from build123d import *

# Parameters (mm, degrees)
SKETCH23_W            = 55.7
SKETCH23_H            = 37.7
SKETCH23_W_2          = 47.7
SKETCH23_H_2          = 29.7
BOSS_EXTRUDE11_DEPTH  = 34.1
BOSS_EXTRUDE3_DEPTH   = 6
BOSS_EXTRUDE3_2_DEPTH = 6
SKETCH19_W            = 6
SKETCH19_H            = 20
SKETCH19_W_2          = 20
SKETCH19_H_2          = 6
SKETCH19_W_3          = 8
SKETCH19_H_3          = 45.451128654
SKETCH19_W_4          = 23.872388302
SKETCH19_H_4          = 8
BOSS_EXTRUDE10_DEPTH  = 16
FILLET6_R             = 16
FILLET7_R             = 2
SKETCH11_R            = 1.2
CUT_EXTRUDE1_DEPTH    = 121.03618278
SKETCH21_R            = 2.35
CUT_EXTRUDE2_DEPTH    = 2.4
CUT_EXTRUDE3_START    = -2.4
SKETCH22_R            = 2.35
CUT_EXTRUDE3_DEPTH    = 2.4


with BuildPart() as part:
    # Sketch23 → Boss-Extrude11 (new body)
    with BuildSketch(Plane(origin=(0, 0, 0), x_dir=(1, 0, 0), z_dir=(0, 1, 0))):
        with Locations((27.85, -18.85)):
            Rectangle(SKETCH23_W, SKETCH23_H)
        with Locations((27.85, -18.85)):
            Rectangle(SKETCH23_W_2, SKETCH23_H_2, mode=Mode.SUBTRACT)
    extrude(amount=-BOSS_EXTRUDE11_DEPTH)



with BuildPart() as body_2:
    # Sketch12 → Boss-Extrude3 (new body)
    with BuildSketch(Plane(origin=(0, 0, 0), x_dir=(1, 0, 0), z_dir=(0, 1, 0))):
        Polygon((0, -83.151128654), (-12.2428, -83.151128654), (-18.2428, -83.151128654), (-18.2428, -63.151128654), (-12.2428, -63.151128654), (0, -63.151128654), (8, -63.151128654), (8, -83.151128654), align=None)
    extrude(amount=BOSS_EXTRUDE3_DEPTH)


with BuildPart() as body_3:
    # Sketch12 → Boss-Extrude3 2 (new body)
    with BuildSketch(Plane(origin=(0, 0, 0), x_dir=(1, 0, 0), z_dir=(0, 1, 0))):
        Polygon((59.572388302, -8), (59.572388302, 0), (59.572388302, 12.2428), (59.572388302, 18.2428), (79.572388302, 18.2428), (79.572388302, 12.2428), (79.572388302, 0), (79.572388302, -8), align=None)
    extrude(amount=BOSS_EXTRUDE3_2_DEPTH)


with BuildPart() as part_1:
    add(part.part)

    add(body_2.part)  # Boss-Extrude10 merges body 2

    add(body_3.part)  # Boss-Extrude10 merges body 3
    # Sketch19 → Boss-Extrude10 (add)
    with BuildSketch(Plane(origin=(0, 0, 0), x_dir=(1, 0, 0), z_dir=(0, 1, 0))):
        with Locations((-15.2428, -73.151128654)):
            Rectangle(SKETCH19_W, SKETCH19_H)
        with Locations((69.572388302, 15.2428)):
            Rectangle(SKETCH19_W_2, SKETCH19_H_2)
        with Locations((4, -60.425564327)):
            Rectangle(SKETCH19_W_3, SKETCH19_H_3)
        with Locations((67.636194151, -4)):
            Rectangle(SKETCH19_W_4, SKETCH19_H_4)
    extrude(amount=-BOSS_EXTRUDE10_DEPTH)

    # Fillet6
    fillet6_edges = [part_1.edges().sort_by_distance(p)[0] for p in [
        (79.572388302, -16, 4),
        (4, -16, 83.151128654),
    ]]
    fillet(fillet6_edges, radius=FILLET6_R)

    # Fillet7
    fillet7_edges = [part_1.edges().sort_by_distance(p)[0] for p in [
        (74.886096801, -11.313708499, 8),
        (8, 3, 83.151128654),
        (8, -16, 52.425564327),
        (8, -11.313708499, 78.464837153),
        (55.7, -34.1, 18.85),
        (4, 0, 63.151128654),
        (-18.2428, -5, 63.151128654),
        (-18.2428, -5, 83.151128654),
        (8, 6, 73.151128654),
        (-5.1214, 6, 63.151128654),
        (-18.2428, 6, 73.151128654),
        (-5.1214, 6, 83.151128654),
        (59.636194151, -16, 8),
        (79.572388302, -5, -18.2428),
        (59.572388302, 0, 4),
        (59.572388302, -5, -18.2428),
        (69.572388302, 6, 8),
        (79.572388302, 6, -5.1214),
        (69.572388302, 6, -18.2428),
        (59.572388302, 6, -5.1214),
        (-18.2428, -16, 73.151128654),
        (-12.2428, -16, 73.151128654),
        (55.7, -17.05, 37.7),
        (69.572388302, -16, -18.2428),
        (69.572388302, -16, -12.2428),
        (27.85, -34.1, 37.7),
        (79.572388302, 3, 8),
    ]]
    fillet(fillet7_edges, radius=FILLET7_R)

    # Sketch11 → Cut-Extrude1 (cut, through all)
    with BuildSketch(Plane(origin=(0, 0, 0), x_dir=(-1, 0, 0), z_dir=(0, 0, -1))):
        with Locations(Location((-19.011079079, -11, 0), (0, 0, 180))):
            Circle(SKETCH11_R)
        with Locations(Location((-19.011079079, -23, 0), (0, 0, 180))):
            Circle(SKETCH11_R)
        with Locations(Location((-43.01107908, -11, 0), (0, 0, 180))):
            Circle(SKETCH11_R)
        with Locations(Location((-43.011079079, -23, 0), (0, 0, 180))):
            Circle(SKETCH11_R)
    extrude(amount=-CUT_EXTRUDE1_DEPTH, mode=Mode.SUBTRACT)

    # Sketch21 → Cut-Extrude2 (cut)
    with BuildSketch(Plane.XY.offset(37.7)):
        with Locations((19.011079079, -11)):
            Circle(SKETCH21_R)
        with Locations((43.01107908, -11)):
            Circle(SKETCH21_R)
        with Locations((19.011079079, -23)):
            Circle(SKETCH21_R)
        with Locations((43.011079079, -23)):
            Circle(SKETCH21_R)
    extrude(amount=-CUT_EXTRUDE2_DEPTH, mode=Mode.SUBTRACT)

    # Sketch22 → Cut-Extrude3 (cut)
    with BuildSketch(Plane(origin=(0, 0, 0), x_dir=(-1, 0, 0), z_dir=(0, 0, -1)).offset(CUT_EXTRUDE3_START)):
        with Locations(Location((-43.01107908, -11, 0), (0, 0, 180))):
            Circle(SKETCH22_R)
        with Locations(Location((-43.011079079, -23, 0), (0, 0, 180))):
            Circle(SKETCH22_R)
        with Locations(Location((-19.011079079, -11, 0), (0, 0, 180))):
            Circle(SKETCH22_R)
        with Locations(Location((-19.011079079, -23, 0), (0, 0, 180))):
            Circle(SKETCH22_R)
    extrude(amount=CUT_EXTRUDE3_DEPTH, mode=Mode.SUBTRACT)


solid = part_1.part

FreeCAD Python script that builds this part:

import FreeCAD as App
import Part
import Sketcher
from FreeCAD import Vector
Q = App.Units.Quantity


def edges_at(feature, points):
    """Names of the edges that pass closest to the given points."""
    edges = feature.Shape.Edges
    near = lambda p: min(range(len(edges)), key=lambda i: edges[i].distToShape(Part.Vertex(*p))[0])
    return sorted({f"Edge{near(p) + 1}" for p in points})


def add_polygon(sketch, points):
    """Adds a closed chain of lines whose ends are joined by coincident constraints."""
    first, n = sketch.GeometryCount, len(points)
    for a, b in zip(points, points[1:] + points[:1]):
        sketch.addGeometry(Part.LineSegment(App.Vector(*a, 0), App.Vector(*b, 0)), False)
    for i in range(n):
        sketch.addConstraint(Sketcher.Constraint("Coincident", first + i, 2, first + (i + 1) % n, 1))

doc = App.newDocument("Part")
body = doc.addObject("PartDesign::Body", "Body")

sketch1 = body.newObject("Sketcher::SketchObject", "Sketch")
sketch1.AttachmentSupport = (doc.getObject("XZ_Plane"), [""])
sketch1.MapMode = "FlatFace"
add_polygon(sketch1, [(0, 0), (0, 38), (56, 38), (56, 0)])
add_polygon(sketch1, [(52, 34), (4, 34), (4, 4), (52, 4)])
sketch1.addConstraint(Sketcher.Constraint("Vertical", 0))
sketch1.addConstraint(Sketcher.Constraint("Horizontal", 1))
sketch1.addConstraint(Sketcher.Constraint("Vertical", 2))
sketch1.addConstraint(Sketcher.Constraint("Horizontal", 3))
sketch1.addConstraint(Sketcher.Constraint("Horizontal", 4))
sketch1.addConstraint(Sketcher.Constraint("Vertical", 5))
sketch1.addConstraint(Sketcher.Constraint("Horizontal", 6))
sketch1.addConstraint(Sketcher.Constraint("Vertical", 7))
sketch1.addConstraint(Sketcher.Constraint("Coincident", 3, 2, -1, 1))
sketch1.addConstraint(Sketcher.Constraint("DistanceX", 1, 1, 1, 2, Q("55.7 mm")))
sketch1.addConstraint(Sketcher.Constraint("DistanceX", 4, 2, 4, 1, Q("47.7 mm")))
sketch1.addConstraint(Sketcher.Constraint("DistanceY", 0, 1, 0, 2, Q("37.7 mm")))
sketch1.addConstraint(Sketcher.Constraint("DistanceY", 5, 2, 5, 1, Q("29.7 mm")))
sketch1.addConstraint(Sketcher.Constraint("DistanceX", -1, 1, 4, 2, Q("4 mm")))
sketch1.addConstraint(Sketcher.Constraint("DistanceY", -1, 1, 5, 2, Q("4 mm")))
pad1 = body.newObject("PartDesign::Pad", "Pad")
pad1.Profile = sketch1
pad1.Length = 34.1
body2 = doc.addObject("PartDesign::Body", "Body001")

sketch2 = body2.newObject("Sketcher::SketchObject", "Sketch001")
sketch2.AttachmentSupport = (doc.getObject("XZ_Plane001"), [""])
sketch2.MapMode = "FlatFace"
add_polygon(sketch2, [(-18, 83), (8, 83), (8, 63), (-18, 63)])
sketch2.addConstraint(Sketcher.Constraint("Horizontal", 0))
sketch2.addConstraint(Sketcher.Constraint("Vertical", 1))
sketch2.addConstraint(Sketcher.Constraint("Horizontal", 2))
sketch2.addConstraint(Sketcher.Constraint("Vertical", 3))
sketch2.addConstraint(Sketcher.Constraint("DistanceY", 1, 2, 1, 1, Q("20 mm")))
sketch2.addConstraint(Sketcher.Constraint("DistanceX", -1, 1, 0, 2, Q("8 mm")))
sketch2.addConstraint(Sketcher.Constraint("DistanceX", 0, 1, 0, 2, Q("26.2428 mm")))
sketch2.addConstraint(Sketcher.Constraint("DistanceY", -1, 1, 0, 2, Q("83.151129 mm")))
pad2 = body2.newObject("PartDesign::Pad", "Pad001")
pad2.Profile = sketch2
pad2.Length = 6
pad2.Reversed = True
body3 = doc.addObject("PartDesign::Body", "Body002")

sketch3 = body3.newObject("Sketcher::SketchObject", "Sketch002")
sketch3.AttachmentSupport = (doc.getObject("XZ_Plane002"), [""])
sketch3.MapMode = "FlatFace"
add_polygon(sketch3, [(60, -18), (60, 8), (80, 8), (80, -18)])
sketch3.addConstraint(Sketcher.Constraint("Vertical", 0))
sketch3.addConstraint(Sketcher.Constraint("Horizontal", 1))
sketch3.addConstraint(Sketcher.Constraint("Vertical", 2))
sketch3.addConstraint(Sketcher.Constraint("Horizontal", 3))
sketch3.addConstraint(Sketcher.Constraint("DistanceX", 1, 1, 1, 2, Q("20 mm")))
sketch3.addConstraint(Sketcher.Constraint("DistanceY", -1, 1, 0, 2, Q("8 mm")))
sketch3.addConstraint(Sketcher.Constraint("DistanceY", 0, 1, 0, 2, Q("26.2428 mm")))
sketch3.addConstraint(Sketcher.Constraint("DistanceX", -1, 1, 0, 2, Q("59.572388 mm")))
pad3 = body3.newObject("PartDesign::Pad", "Pad002")
pad3.Profile = sketch3
pad3.Length = 6
pad3.Reversed = True
body.AllowCompound = True
doc.recompute()

boolean = body.newObject("PartDesign::Boolean", "Boolean")
boolean.Type = "Fuse"
boolean.addObjects([body2])
doc.recompute()

boolean2 = body.newObject("PartDesign::Boolean", "Boolean001")
boolean2.Type = "Fuse"
boolean2.addObjects([body3])

sketch4 = body.newObject("Sketcher::SketchObject", "Sketch003")
sketch4.AttachmentSupport = (doc.getObject("XZ_Plane"), [""])
sketch4.MapMode = "FlatFace"
add_polygon(sketch4, [(-18, 63), (-18, 83), (-12, 83), (-12, 63)])
add_polygon(sketch4, [(60, -18), (60, -12), (80, -12), (80, -18)])
add_polygon(sketch4, [(0, 38), (0, 83), (8, 83), (8, 38)])
add_polygon(sketch4, [(56, 0), (56, 8), (80, 8), (80, 0)])
sketch4.addConstraint(Sketcher.Constraint("Vertical", 0))
sketch4.addConstraint(Sketcher.Constraint("Horizontal", 1))
sketch4.addConstraint(Sketcher.Constraint("Vertical", 2))
sketch4.addConstraint(Sketcher.Constraint("Horizontal", 3))
sketch4.addConstraint(Sketcher.Constraint("Vertical", 4))
sketch4.addConstraint(Sketcher.Constraint("Horizontal", 5))
sketch4.addConstraint(Sketcher.Constraint("Vertical", 6))
sketch4.addConstraint(Sketcher.Constraint("Horizontal", 7))
sketch4.addConstraint(Sketcher.Constraint("Vertical", 8))
sketch4.addConstraint(Sketcher.Constraint("Horizontal", 9))
sketch4.addConstraint(Sketcher.Constraint("Vertical", 10))
sketch4.addConstraint(Sketcher.Constraint("Horizontal", 11))
sketch4.addConstraint(Sketcher.Constraint("Vertical", 12))
sketch4.addConstraint(Sketcher.Constraint("Horizontal", 13))
sketch4.addConstraint(Sketcher.Constraint("Vertical", 14))
sketch4.addConstraint(Sketcher.Constraint("Horizontal", 15))
sketch4.addConstraint(Sketcher.Constraint("PointOnObject", 8, 2, -2))
sketch4.addConstraint(Sketcher.Constraint("PointOnObject", 14, 2, -1))
sketch4.addConstraint(Sketcher.Constraint("Horizontal", 1, 2, 8, 2))
sketch4.addConstraint(Sketcher.Constraint("Vertical", 6, 2, 13, 2))
sketch4.addConstraint(Sketcher.Constraint("Equal", 7, 0))
sketch4.addConstraint(Sketcher.Constraint("Equal", 3, 4))
sketch4.addConstraint(Sketcher.Constraint("Equal", 11, 12))
sketch4.addConstraint(Sketcher.Constraint("DistanceX", 1, 1, 1, 2, Q("6 mm")))
sketch4.addConstraint(Sketcher.Constraint("DistanceX", 5, 1, 5, 2, Q("20 mm")))
sketch4.addConstraint(Sketcher.Constraint("DistanceX", 9, 1, 9, 2, Q("8 mm")))
sketch4.addConstraint(Sketcher.Constraint("DistanceY", -1, 1, 10, 2, Q("37.7 mm")))
sketch4.addConstraint(Sketcher.Constraint("DistanceX", -1, 1, 12, 2, Q("55.7 mm")))
sketch4.addConstraint(Sketcher.Constraint("DistanceX", 13, 1, 13, 2, Q("23.872388 mm")))
sketch4.addConstraint(Sketcher.Constraint("DistanceY", 8, 1, 8, 2, Q("45.451129 mm")))
sketch4.addConstraint(Sketcher.Constraint("DistanceX", 0, 2, -1, 1, Q("18.2428 mm")))
sketch4.addConstraint(Sketcher.Constraint("DistanceY", 4, 2, -1, 1, Q("12.2428 mm")))
pad4 = body.newObject("PartDesign::Pad", "Pad003")
pad4.Profile = sketch4
pad4.Length = 16
doc.recompute()

fillet = body.newObject("PartDesign::Fillet", "Fillet")
fillet.Base = (pad4, edges_at(pad4, [(79.572, -16, 4), (4, -16, 83.151)]))
fillet.Radius = 16
doc.recompute()

fillet2 = body.newObject("PartDesign::Fillet", "Fillet001")
fillet2.Base = (fillet, edges_at(fillet, [
    (74.886, -11.314, 8),
    (8, 3, 83.151),
    (8, -16, 52.426),
    (8, -11.314, 78.465),
    (55.7, -34.1, 18.85),
    (4, 0, 63.151),
    (-18.243, -5, 63.151),
    (-18.243, -5, 83.151),
    (8, 6, 73.151),
    (-5.121, 6, 63.151),
    (-18.243, 6, 73.151),
    (-5.121, 6, 83.151),
    (59.636, -16, 8),
    (79.572, -5, -18.243),
    (59.572, 0, 4),
    (59.572, -5, -18.243),
    (69.572, 6, 8),
    (79.572, 6, -5.121),
    (69.572, 6, -18.243),
    (59.572, 6, -5.121),
    (-18.243, -16, 73.151),
    (-12.243, -16, 73.151),
    (55.7, -17.05, 37.7),
    (69.572, -16, -18.243),
    (69.572, -16, -12.243),
    (27.85, -34.1, 37.7),
    (79.572, 3, 8),
]))
fillet2.Radius = 2

sketch5 = body.newObject("Sketcher::SketchObject", "Sketch004")
sketch5.AttachmentSupport = (doc.getObject("XY_Plane"), [""])
sketch5.MapMode = "FlatFace"
sketch5.addGeometry(Part.Circle(Vector(19, -11, 0), Vector(0, 0, 1), 1.2), False)
sketch5.addGeometry(Part.Circle(Vector(19, -23, 0), Vector(0, 0, 1), 1.2), False)
sketch5.addGeometry(Part.Circle(Vector(43, -11, 0), Vector(0, 0, 1), 1.2), False)
sketch5.addGeometry(Part.Circle(Vector(43, -23, 0), Vector(0, 0, 1), 1.2), False)
sketch5.addConstraint(Sketcher.Constraint("Equal", 0, 1))
sketch5.addConstraint(Sketcher.Constraint("Equal", 1, 2))
sketch5.addConstraint(Sketcher.Constraint("Equal", 2, 3))
sketch5.addConstraint(Sketcher.Constraint("Horizontal", 0, 3, 2, 3))
sketch5.addConstraint(Sketcher.Constraint("Horizontal", 1, 3, 3, 3))
sketch5.addConstraint(Sketcher.Constraint("Vertical", 0, 3, 1, 3))
sketch5.addConstraint(Sketcher.Constraint("Vertical", 2, 3, 3, 3))
sketch5.addConstraint(Sketcher.Constraint("Diameter", 0, Q("2.4 mm")))
sketch5.addConstraint(Sketcher.Constraint("DistanceY", 0, 3, -1, 1, Q("11 mm")))
sketch5.addConstraint(Sketcher.Constraint("DistanceY", 1, 3, -1, 1, Q("23 mm")))
sketch5.addConstraint(Sketcher.Constraint("DistanceX", 0, 3, 2, 3, Q("24 mm")))
sketch5.addConstraint(Sketcher.Constraint("DistanceX", -1, 1, 0, 3, Q("19.011079 mm")))
pocket1 = body.newObject("PartDesign::Pocket", "Pocket")
pocket1.Profile = sketch5
pocket1.Type = "ThroughAll"
pocket1.Reversed = True

sketch6 = body.newObject("Sketcher::SketchObject", "Sketch005")
sketch6.AttachmentSupport = (doc.getObject("XY_Plane"), [""])
sketch6.MapMode = "FlatFace"
sketch6.AttachmentOffset = App.Placement(Vector(0, 0, 37.7), App.Rotation())
sketch6.addGeometry(Part.Circle(Vector(19, -11, 0), Vector(0, 0, 1), 2.4), False)
sketch6.addGeometry(Part.Circle(Vector(43, -11, 0), Vector(0, 0, 1), 2.4), False)
sketch6.addGeometry(Part.Circle(Vector(19, -23, 0), Vector(0, 0, 1), 2.4), False)
sketch6.addGeometry(Part.Circle(Vector(43, -23, 0), Vector(0, 0, 1), 2.4), False)
sketch6.addConstraint(Sketcher.Constraint("Equal", 0, 1))
sketch6.addConstraint(Sketcher.Constraint("Equal", 1, 2))
sketch6.addConstraint(Sketcher.Constraint("Equal", 2, 3))
sketch6.addConstraint(Sketcher.Constraint("Horizontal", 0, 3, 1, 3))
sketch6.addConstraint(Sketcher.Constraint("Horizontal", 2, 3, 3, 3))
sketch6.addConstraint(Sketcher.Constraint("Vertical", 0, 3, 2, 3))
sketch6.addConstraint(Sketcher.Constraint("Vertical", 1, 3, 3, 3))
sketch6.addConstraint(Sketcher.Constraint("Diameter", 0, Q("4.7 mm")))
sketch6.addConstraint(Sketcher.Constraint("DistanceY", 0, 3, -1, 1, Q("11 mm")))
sketch6.addConstraint(Sketcher.Constraint("DistanceY", 2, 3, -1, 1, Q("23 mm")))
sketch6.addConstraint(Sketcher.Constraint("DistanceX", 0, 3, 1, 3, Q("24 mm")))
sketch6.addConstraint(Sketcher.Constraint("DistanceX", -1, 1, 0, 3, Q("19.011079 mm")))
pocket2 = body.newObject("PartDesign::Pocket", "Pocket001")
pocket2.Profile = sketch6
pocket2.Length = 2.4

sketch7 = body.newObject("Sketcher::SketchObject", "Sketch006")
sketch7.AttachmentSupport = (doc.getObject("XY_Plane"), [""])
sketch7.MapMode = "FlatFace"
sketch7.AttachmentOffset = App.Placement(Vector(0, 0, 2.4), App.Rotation())
sketch7.addGeometry(Part.Circle(Vector(43, -11, 0), Vector(0, 0, 1), 2.4), False)
sketch7.addGeometry(Part.Circle(Vector(43, -23, 0), Vector(0, 0, 1), 2.4), False)
sketch7.addGeometry(Part.Circle(Vector(19, -11, 0), Vector(0, 0, 1), 2.4), False)
sketch7.addGeometry(Part.Circle(Vector(19, -23, 0), Vector(0, 0, 1), 2.4), False)
sketch7.addConstraint(Sketcher.Constraint("Equal", 0, 1))
sketch7.addConstraint(Sketcher.Constraint("Equal", 1, 2))
sketch7.addConstraint(Sketcher.Constraint("Equal", 2, 3))
sketch7.addConstraint(Sketcher.Constraint("Horizontal", 0, 3, 2, 3))
sketch7.addConstraint(Sketcher.Constraint("Horizontal", 1, 3, 3, 3))
sketch7.addConstraint(Sketcher.Constraint("Vertical", 0, 3, 1, 3))
sketch7.addConstraint(Sketcher.Constraint("Vertical", 2, 3, 3, 3))
sketch7.addConstraint(Sketcher.Constraint("Diameter", 0, Q("4.7 mm")))
sketch7.addConstraint(Sketcher.Constraint("DistanceY", 0, 3, -1, 1, Q("11 mm")))
sketch7.addConstraint(Sketcher.Constraint("DistanceY", 1, 3, -1, 1, Q("23 mm")))
sketch7.addConstraint(Sketcher.Constraint("DistanceX", 2, 3, 0, 3, Q("24 mm")))
sketch7.addConstraint(Sketcher.Constraint("DistanceX", -1, 1, 0, 3, Q("43.011079 mm")))
pocket3 = body.newObject("PartDesign::Pocket", "Pocket002")
pocket3.Profile = sketch7
pocket3.Length = 2.4

doc.recompute()
